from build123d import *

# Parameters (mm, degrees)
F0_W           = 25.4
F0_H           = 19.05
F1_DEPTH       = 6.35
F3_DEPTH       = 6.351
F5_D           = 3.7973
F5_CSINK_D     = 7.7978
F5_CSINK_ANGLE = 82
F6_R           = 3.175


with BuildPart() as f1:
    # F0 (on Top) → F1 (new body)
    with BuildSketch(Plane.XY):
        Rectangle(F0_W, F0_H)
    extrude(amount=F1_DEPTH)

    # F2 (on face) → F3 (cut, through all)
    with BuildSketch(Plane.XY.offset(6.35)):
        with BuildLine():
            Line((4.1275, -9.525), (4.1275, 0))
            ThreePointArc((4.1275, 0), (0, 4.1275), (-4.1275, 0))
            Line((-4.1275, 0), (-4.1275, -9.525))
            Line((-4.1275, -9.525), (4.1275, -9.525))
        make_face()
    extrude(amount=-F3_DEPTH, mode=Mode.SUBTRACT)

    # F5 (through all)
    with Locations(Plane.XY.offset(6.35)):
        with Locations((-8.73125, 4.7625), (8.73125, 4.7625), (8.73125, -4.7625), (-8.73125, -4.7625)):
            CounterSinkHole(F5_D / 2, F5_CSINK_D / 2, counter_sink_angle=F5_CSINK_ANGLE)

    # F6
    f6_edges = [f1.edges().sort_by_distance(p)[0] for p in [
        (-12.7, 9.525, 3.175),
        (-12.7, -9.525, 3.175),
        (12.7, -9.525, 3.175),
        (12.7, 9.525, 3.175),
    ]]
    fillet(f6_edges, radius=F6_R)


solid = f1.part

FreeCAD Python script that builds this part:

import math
import FreeCAD as App
import Part
import Sketcher
from FreeCAD import Vector
Q = App.Units.Quantity


def edges_at(feature, points):
    """Names of the edges that pass closest to the given points."""
    edges = feature.Shape.Edges
    near = lambda p: min(range(len(edges)), key=lambda i: edges[i].distToShape(Part.Vertex(*p))[0])
    return sorted({f"Edge{near(p) + 1}" for p in points})


def add_polygon(sketch, points):
    """Adds a closed chain of lines whose ends are joined by coincident constraints."""
    first, n = sketch.GeometryCount, len(points)
    for a, b in zip(points, points[1:] + points[:1]):
        sketch.addGeometry(Part.LineSegment(App.Vector(*a, 0), App.Vector(*b, 0)), False)
    for i in range(n):
        sketch.addConstraint(Sketcher.Constraint("Coincident", first + i, 2, first + (i + 1) % n, 1))

doc = App.newDocument("Part")
body = doc.addObject("PartDesign::Body", "Body")

sketch1 = body.newObject("Sketcher::SketchObject", "Sketch")
sketch1.AttachmentSupport = (doc.getObject("XY_Plane"), [""])
sketch1.MapMode = "FlatFace"
add_polygon(sketch1, [(-12.7, 9.525), (-12.7, -9.525), (12.7, -9.525), (12.7, 9.525)])
sketch1.addConstraint([
    Sketcher.Constraint("Vertical", 0),
    Sketcher.Constraint("Horizontal", 1),
    Sketcher.Constraint("Vertical", 2),
    Sketcher.Constraint("Horizontal", 3),
    Sketcher.Constraint("Symmetric", 0, 2, 2, 2, -1, 1),
    Sketcher.Constraint("DistanceX", 1, 1, 1, 2, Q("1 in")),
    Sketcher.Constraint("DistanceY", 0, 2, 0, 1, Q("0.75 in")),
])
pad1 = body.newObject("PartDesign::Pad", "Pad")
pad1.Profile = sketch1
pad1.Length = Q("0.25 in")

sketch2 = body.newObject("Sketcher::SketchObject", "Sketch001")
sketch2.AttachmentSupport = (doc.getObject("XY_Plane"), [""])
sketch2.MapMode = "FlatFace"
sketch2.AttachmentOffset = App.Placement(Vector(0, 0, 0.25 * 25.4), App.Rotation())
sketch2.addGeometry([
    Part.LineSegment(Vector(4.1275, -9.525, 0), Vector(4.1275, 0, 0)),
    Part.ArcOfCircle(Part.Circle(Vector(0, 0, 0), Vector(0, 0, 1), 4.1275), math.radians(0), math.radians(180)),
    Part.LineSegment(Vector(-4.1275, 0, 0), Vector(-4.1275, -9.525, 0)),
    Part.LineSegment(Vector(-4.1275, -9.525, 0), Vector(4.1275, -9.525, 0)),
], False)
sketch2.addConstraint([
    Sketcher.Constraint("Tangent", 0, 2, 1, 1),
    Sketcher.Constraint("Tangent", 1, 2, 2, 1),
    Sketcher.Constraint("Coincident", 2, 2, 3, 1),
    Sketcher.Constraint("Coincident", 3, 2, 0, 1),
    Sketcher.Constraint("Vertical", 0),
    Sketcher.Constraint("Vertical", 2),
    Sketcher.Constraint("Horizontal", 3),
    Sketcher.Constraint("Coincident", 1, 3, -1, 1),
    Sketcher.Constraint("Radius", 1, Q("0.1625 in")),
    Sketcher.Constraint("DistanceY", 0, 1, 0, 2, Q("0.375 in")),
])
pocket1 = body.newObject("PartDesign::Pocket", "Pocket")
pocket1.Profile = sketch2
pocket1.Type = "ThroughAll"

sketch3 = body.newObject("Sketcher::SketchObject", "Sketch002")
sketch3.AttachmentSupport = (doc.getObject("XY_Plane"), [""])
sketch3.MapMode = "FlatFace"
sketch3.AttachmentOffset = App.Placement(Vector(0, 0, 0.25 * 25.4), App.Rotation())
sketch3.addGeometry([
    Part.Circle(Vector(-8.73125, 4.7625, 0), Vector(0, 0, 1), 1.89865),
    Part.Circle(Vector(8.73125, 4.7625, 0), Vector(0, 0, 1), 1.89865),
    Part.Circle(Vector(8.73125, -4.7625, 0), Vector(0, 0, 1), 1.89865),
    Part.Circle(Vector(-8.73125, -4.7625, 0), Vector(0, 0, 1), 1.89865),
], False)
sketch3.addConstraint([
    Sketcher.Constraint("Equal", 0, 1),
    Sketcher.Constraint("Equal", 1, 2),
    Sketcher.Constraint("Equal", 2, 3),
    Sketcher.Constraint("Symmetric", 0, 3, 2, 3, -1, 1),
    Sketcher.Constraint("Symmetric", 1, 3, 3, 3, -1, 1),
    Sketcher.Constraint("Symmetric", 0, 3, 1, 3, -2),
    Sketcher.Constraint("Diameter", 0, Q("0.1495 in")),
    Sketcher.Constraint("DistanceX", 0, 3, -1, 1, Q("0.34375 in")),
    Sketcher.Constraint("DistanceY", -1, 1, 0, 3, Q("0.1875 in")),
])
doc.recompute()
hole = body.newObject("PartDesign::Hole", "Hole")
hole.Profile = sketch3
hole.ThreadType = "None"
hole.Diameter = Q("0.1495 in")
hole.DepthType = "ThroughAll"
hole.HoleCutType = "Countersink"
hole.HoleCutDiameter = Q("0.307 in")
hole.HoleCutCountersinkAngle = 82
doc.recompute()

fillet = body.newObject("PartDesign::Fillet", "Fillet")
fillet.Base = (hole, edges_at(hole, [
    (-12.7, 9.525, 3.175),
    (-12.7, -9.525, 3.175),
    (12.7, -9.525, 3.175),
    (12.7, 9.525, 3.175),
]))
fillet.Radius = Q("0.125 in")

doc.recompute()
